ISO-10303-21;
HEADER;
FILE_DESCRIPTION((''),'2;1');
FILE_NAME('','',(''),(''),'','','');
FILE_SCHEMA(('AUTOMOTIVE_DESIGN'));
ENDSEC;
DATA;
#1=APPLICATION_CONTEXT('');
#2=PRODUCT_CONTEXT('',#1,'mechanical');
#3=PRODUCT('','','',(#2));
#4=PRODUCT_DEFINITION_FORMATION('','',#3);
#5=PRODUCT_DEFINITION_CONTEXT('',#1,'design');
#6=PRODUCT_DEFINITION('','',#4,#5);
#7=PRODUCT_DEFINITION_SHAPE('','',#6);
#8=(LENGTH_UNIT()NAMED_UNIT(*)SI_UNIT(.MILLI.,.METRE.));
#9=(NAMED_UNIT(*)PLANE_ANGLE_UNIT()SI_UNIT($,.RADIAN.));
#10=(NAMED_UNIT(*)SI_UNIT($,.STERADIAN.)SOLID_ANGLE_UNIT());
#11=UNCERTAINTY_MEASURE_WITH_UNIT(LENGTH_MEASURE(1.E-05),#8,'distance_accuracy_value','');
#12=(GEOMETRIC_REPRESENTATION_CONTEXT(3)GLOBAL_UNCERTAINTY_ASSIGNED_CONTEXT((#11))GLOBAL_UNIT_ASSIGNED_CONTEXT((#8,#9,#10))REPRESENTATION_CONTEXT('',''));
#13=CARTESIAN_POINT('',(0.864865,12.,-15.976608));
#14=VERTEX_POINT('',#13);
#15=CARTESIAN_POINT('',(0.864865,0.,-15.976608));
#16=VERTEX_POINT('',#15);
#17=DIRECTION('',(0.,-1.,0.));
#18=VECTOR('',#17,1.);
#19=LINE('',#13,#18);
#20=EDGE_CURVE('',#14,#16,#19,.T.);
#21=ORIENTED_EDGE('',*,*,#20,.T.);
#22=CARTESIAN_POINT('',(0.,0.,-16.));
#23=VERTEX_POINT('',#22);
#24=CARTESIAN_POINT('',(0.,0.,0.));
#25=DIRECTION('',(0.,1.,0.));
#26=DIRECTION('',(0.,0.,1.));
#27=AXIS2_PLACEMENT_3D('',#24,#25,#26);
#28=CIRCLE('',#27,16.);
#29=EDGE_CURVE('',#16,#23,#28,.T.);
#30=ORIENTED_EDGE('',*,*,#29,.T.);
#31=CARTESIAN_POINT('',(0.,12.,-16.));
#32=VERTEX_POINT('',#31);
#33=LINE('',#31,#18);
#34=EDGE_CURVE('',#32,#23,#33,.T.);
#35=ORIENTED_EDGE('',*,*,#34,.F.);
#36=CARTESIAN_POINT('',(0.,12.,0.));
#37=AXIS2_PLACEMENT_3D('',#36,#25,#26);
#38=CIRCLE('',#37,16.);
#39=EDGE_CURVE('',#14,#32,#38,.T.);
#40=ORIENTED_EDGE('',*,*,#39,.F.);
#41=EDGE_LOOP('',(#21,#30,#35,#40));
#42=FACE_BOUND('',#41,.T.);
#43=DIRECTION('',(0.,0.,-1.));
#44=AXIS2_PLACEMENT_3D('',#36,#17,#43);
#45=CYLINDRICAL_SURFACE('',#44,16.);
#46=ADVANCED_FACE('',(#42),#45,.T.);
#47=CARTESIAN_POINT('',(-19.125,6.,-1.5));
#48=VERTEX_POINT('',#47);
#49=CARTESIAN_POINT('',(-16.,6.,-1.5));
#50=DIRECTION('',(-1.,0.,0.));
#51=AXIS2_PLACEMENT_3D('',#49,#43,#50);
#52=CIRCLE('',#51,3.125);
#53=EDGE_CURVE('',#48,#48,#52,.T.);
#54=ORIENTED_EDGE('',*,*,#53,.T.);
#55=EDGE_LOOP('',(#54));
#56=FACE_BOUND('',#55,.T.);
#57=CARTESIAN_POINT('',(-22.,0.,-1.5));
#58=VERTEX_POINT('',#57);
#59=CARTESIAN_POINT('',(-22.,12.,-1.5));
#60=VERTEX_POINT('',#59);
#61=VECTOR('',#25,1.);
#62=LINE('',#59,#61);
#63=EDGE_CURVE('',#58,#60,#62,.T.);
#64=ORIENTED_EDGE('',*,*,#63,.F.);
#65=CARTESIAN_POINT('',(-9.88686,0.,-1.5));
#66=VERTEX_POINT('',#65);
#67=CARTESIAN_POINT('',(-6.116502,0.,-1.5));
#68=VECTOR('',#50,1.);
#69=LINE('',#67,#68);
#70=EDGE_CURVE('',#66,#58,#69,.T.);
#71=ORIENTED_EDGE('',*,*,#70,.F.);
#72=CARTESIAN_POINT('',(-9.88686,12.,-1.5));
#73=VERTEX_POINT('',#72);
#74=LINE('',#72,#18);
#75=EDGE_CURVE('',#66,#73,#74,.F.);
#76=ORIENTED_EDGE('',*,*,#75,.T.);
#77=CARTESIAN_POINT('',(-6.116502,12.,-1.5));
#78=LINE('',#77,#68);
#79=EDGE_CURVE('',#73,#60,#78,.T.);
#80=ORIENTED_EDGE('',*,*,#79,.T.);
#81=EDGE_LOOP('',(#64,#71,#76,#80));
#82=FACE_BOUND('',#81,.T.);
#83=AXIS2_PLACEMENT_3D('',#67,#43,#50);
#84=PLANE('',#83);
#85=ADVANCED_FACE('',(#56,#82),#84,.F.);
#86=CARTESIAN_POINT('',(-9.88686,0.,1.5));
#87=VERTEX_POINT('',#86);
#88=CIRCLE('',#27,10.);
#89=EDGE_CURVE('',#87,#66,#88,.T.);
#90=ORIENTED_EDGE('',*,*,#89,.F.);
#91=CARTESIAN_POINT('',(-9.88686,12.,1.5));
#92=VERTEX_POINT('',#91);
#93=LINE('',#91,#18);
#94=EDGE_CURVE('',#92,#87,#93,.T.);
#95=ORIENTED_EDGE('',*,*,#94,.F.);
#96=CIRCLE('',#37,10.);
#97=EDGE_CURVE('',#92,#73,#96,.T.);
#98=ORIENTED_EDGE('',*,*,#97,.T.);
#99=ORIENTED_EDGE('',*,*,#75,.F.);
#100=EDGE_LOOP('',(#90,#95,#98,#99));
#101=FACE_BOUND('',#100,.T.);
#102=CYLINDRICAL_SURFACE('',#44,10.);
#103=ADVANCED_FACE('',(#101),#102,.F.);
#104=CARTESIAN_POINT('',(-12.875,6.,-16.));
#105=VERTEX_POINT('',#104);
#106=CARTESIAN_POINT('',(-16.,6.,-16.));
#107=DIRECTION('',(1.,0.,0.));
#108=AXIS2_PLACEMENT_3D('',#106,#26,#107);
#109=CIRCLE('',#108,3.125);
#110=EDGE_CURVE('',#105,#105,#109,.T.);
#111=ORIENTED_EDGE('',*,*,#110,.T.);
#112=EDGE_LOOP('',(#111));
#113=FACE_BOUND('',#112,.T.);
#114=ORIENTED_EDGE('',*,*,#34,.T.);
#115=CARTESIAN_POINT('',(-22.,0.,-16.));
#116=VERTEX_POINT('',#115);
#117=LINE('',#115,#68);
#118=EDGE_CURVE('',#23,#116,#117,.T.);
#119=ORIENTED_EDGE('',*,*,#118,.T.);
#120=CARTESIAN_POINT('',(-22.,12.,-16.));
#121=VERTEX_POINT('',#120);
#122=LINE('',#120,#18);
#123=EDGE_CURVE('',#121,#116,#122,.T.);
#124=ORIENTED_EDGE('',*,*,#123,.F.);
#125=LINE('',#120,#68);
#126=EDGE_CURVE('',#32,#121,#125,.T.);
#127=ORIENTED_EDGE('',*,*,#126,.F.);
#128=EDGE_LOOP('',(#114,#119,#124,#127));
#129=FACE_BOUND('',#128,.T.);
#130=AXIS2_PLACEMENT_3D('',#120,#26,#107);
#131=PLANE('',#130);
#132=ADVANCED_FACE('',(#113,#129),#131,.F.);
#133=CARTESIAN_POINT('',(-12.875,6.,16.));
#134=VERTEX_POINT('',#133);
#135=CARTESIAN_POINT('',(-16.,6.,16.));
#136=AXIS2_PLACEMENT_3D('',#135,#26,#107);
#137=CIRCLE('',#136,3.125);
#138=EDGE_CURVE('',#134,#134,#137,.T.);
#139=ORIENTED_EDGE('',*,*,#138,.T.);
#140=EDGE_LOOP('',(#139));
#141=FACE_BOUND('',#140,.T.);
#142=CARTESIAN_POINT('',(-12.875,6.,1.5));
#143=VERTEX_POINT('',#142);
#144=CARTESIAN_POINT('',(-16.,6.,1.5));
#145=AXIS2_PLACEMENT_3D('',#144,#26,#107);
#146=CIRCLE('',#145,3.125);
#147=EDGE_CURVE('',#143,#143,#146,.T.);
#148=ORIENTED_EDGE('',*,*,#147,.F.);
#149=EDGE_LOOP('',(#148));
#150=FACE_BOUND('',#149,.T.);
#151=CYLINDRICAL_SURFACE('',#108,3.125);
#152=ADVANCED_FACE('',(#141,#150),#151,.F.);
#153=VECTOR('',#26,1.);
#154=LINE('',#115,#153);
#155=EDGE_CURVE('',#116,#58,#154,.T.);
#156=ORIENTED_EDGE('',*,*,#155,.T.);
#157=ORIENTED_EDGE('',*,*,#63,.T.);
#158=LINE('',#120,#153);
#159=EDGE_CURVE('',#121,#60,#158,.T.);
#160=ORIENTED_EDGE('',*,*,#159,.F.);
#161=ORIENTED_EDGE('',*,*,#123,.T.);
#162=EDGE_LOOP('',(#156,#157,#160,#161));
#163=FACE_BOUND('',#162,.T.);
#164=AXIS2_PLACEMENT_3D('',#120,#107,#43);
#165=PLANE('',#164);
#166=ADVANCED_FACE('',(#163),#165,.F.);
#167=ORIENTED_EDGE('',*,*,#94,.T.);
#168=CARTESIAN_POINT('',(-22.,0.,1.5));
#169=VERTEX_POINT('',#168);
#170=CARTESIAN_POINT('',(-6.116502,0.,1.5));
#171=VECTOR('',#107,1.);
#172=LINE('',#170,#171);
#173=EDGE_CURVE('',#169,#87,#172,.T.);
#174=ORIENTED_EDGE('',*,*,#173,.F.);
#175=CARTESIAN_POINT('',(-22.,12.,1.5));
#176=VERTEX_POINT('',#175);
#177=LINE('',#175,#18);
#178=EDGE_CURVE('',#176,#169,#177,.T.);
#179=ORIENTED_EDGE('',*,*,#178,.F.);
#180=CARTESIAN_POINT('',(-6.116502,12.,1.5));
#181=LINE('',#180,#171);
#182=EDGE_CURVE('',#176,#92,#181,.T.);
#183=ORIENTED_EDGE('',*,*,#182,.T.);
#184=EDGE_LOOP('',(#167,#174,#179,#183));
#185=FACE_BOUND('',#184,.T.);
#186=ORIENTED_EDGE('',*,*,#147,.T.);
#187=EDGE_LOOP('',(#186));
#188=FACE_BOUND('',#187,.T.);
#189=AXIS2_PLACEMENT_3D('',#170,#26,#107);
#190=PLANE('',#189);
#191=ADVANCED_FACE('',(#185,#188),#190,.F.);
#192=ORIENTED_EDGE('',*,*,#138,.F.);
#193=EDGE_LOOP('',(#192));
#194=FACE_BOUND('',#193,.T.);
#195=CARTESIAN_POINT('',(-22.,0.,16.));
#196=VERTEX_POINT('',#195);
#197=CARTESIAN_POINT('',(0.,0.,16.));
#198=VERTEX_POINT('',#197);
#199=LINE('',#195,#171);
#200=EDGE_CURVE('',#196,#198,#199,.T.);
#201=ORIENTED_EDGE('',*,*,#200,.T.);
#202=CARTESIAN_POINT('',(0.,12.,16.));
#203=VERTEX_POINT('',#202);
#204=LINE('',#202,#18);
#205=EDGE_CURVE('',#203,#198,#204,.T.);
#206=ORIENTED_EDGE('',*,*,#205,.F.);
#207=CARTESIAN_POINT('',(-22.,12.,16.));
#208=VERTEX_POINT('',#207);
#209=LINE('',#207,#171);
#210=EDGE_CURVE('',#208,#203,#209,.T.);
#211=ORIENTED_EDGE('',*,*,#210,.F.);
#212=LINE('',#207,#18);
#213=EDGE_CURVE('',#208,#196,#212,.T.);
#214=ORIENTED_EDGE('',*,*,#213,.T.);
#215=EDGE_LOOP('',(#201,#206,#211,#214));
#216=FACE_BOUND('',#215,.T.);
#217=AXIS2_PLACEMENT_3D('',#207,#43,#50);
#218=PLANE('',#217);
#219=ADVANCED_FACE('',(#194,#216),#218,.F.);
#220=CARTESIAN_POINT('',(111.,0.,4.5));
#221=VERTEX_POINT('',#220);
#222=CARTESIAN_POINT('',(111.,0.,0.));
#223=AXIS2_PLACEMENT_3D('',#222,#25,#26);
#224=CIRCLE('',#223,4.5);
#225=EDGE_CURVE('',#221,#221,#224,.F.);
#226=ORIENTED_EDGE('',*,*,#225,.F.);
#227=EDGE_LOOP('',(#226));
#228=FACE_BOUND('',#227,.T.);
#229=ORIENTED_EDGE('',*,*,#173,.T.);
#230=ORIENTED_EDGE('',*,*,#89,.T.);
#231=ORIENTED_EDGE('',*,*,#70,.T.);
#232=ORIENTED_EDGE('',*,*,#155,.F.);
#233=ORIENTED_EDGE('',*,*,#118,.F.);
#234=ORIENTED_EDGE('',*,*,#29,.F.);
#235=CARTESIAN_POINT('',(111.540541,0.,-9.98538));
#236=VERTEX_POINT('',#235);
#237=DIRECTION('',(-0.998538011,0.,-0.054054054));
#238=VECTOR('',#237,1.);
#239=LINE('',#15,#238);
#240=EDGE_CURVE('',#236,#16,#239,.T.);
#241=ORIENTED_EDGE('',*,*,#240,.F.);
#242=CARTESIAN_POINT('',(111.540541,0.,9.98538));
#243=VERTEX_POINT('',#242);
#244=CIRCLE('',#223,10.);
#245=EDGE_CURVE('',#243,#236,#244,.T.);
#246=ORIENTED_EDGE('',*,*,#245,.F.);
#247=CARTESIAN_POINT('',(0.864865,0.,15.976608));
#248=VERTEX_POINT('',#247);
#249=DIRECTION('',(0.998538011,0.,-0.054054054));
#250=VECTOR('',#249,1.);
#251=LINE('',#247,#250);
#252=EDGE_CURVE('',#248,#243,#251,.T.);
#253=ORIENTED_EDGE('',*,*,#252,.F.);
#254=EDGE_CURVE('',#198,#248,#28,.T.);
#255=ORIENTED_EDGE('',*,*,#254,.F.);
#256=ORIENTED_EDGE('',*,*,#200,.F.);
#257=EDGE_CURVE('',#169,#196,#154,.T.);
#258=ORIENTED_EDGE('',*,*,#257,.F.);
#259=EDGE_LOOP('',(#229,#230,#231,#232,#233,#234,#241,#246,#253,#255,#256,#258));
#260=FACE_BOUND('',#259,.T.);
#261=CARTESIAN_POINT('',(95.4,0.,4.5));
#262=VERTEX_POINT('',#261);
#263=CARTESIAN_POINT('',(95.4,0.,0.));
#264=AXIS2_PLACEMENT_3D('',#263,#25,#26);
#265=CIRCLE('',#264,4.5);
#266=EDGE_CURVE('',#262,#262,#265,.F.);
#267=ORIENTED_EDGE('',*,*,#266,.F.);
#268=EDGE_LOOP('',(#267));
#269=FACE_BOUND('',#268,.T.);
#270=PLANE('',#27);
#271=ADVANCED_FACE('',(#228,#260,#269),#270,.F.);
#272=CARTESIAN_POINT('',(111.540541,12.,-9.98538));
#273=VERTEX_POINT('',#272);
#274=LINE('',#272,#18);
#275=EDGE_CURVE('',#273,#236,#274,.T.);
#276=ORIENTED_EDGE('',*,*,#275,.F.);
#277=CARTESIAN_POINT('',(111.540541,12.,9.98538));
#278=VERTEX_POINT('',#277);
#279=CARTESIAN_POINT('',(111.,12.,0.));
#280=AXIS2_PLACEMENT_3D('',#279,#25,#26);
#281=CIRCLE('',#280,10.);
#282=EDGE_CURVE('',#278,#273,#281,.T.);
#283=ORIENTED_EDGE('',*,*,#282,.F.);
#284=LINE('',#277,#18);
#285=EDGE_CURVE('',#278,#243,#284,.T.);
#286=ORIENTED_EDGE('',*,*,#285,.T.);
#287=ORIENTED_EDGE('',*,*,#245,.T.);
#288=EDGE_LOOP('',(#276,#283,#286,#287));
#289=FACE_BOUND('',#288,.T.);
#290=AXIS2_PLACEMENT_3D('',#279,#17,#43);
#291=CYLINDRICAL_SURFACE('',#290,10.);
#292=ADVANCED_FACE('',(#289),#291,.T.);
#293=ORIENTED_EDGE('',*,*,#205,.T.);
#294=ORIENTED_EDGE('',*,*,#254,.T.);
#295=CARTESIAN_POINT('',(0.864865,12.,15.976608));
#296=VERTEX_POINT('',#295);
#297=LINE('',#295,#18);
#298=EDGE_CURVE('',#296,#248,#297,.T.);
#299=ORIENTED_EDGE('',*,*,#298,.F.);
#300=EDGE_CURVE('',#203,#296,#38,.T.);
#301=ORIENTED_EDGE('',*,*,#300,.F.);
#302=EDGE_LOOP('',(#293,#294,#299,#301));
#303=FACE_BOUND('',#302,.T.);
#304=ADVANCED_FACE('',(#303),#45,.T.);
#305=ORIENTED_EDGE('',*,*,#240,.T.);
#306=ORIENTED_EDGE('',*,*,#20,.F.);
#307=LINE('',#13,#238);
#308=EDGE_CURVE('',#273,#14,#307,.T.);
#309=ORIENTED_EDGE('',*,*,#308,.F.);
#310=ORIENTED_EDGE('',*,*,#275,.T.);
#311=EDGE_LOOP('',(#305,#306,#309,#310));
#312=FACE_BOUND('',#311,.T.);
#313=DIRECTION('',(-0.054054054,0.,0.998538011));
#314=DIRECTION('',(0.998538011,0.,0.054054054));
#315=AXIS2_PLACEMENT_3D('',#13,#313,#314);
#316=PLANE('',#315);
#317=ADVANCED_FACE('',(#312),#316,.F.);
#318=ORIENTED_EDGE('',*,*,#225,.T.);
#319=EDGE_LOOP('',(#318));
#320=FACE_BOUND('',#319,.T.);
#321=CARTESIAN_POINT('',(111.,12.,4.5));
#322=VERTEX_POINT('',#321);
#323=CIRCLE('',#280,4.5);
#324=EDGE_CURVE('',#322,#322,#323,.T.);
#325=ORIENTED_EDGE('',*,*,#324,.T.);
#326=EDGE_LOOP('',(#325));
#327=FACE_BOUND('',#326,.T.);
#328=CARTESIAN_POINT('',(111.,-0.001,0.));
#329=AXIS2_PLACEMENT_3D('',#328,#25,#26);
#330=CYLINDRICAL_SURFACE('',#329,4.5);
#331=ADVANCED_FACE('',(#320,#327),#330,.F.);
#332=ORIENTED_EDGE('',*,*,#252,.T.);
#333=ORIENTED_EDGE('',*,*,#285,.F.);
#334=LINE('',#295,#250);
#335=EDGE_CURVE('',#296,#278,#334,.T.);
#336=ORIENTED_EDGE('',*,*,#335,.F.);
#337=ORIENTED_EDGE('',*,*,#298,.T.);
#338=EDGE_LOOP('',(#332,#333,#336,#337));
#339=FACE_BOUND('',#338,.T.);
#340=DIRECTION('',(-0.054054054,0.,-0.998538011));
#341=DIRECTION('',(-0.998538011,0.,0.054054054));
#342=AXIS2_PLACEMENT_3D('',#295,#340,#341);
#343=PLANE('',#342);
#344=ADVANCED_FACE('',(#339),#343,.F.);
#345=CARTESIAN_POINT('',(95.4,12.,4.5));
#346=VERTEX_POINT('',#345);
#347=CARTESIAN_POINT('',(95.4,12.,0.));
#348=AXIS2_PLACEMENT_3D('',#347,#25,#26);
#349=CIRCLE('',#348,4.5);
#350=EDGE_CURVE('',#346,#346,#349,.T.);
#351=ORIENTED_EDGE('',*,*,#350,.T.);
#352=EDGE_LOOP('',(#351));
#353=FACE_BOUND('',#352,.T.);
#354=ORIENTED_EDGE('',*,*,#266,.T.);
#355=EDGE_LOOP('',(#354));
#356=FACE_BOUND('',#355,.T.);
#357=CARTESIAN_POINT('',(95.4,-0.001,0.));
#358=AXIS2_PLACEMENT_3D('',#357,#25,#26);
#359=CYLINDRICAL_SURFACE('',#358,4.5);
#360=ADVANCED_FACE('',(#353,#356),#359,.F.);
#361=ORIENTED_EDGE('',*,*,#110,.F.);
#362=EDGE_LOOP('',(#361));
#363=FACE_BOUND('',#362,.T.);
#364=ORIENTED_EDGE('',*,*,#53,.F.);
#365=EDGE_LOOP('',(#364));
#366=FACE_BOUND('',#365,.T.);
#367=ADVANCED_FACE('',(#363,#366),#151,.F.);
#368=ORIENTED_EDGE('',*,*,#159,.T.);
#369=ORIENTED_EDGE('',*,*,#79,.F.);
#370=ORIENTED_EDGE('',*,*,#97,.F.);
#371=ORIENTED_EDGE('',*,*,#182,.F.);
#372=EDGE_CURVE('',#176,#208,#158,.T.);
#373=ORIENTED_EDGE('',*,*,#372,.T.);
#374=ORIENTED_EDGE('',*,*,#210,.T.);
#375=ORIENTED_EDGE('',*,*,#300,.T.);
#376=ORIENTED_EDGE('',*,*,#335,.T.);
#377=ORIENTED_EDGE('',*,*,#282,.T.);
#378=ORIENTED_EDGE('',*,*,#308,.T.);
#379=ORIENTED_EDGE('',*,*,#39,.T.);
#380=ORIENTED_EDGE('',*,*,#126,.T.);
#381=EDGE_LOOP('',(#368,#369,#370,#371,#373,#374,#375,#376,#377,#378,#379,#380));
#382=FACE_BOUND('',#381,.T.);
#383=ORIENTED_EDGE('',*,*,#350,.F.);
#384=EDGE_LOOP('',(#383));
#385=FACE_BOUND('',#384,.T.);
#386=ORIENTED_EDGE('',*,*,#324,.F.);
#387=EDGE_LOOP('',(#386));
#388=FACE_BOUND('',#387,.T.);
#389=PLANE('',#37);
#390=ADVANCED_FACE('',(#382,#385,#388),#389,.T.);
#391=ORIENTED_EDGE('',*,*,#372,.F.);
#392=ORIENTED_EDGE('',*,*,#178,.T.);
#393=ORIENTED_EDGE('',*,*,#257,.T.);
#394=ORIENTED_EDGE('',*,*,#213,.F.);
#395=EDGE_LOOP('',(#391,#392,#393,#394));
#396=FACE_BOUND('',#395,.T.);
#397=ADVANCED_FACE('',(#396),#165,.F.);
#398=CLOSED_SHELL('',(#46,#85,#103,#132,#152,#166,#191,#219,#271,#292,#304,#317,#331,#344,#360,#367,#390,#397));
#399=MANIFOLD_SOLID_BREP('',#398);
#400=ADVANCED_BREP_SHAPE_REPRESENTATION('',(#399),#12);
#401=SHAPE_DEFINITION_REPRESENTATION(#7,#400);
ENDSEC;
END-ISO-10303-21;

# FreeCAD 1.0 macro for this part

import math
import FreeCAD as App
import Part
import Sketcher

V = App.Vector

doc = App.newDocument("Part")
body = doc.addObject("PartDesign::Body", "Body")

# Sketch on XZ plane
sketch1 = body.newObject("Sketcher::SketchObject", "Sketch")
sketch1.AttachmentSupport = (doc.getObject("XZ_Plane"), [""])
sketch1.MapMode = "FlatFace"
sketch1.addGeometry([
    Part.LineSegment(V(111.5, -10, 0), V(0.9, -16, 0)),  # 0
    Part.ArcOfCircle(Part.Circle(V(0, 0, 0), V(0, 0, 1), 16), math.radians(-90), math.radians(-86.9)),  # 1
    Part.LineSegment(V(0, -16, 0), V(-22, -16, 0)),  # 2
    Part.LineSegment(V(-22, -16, 0), V(-22, 16, 0)),  # 3
    Part.LineSegment(V(-22, 16, 0), V(0, 16, 0)),  # 4
    Part.ArcOfCircle(Part.Circle(V(0, 0, 0), V(0, 0, 1), 16), math.radians(86.9), math.radians(90)),  # 5
    Part.LineSegment(V(0.9, 16, 0), V(111.5, 10, 0)),  # 6
    Part.ArcOfCircle(Part.Circle(V(111, 0, 0), V(0, 0, 1), 10), math.radians(-87), math.radians(87)),  # 7
    Part.Circle(V(0, 0, 0), V(0, 0, 1), 10),  # 8
], False)
sketch1.addConstraint([
    Sketcher.Constraint("Tangent", 0, 2, 1, 2),
    Sketcher.Constraint("Tangent", 1, 1, 2, 1),
    Sketcher.Constraint("Coincident", 2, 2, 3, 1),
    Sketcher.Constraint("Coincident", 3, 2, 4, 1),
    Sketcher.Constraint("Tangent", 4, 2, 5, 2),
    Sketcher.Constraint("Tangent", 5, 1, 6, 1),
    Sketcher.Constraint("Tangent", 6, 2, 7, 2),
    Sketcher.Constraint("Tangent", 7, 1, 0, 1),
    Sketcher.Constraint("Horizontal", 2),
    Sketcher.Constraint("Vertical", 3),
    Sketcher.Constraint("Horizontal", 4),
    Sketcher.Constraint("Coincident", 1, 3, -1, 1),
    Sketcher.Constraint("Coincident", 5, 3, -1, 1),
    Sketcher.Constraint("Coincident", 8, 3, -1, 1),
    Sketcher.Constraint("Equal", 1, 5),
    Sketcher.Constraint("Equal", 7, 8),
    Sketcher.Constraint("PointOnObject", 7, 3, -1),
    Sketcher.Constraint("Diameter", 8, 20.0),
    Sketcher.Constraint("Radius", 1, 15.999999),
    Sketcher.Constraint("DistanceX", 2, 2, 2, 1, 22.0),
    Sketcher.Constraint("DistanceX", -1, 1, 7, 3, 111.0),
])
pad1 = body.newObject("PartDesign::Pad", "Pad")
pad1.Profile = sketch1
pad1.Length = 12
pad1.Reversed = True

# Sketch on XZ plane
sketch2 = body.newObject("Sketcher::SketchObject", "Sketch001")
sketch2.AttachmentSupport = (doc.getObject("XZ_Plane"), [""])
sketch2.MapMode = "FlatFace"
sketch2.AttachmentOffset = App.Placement(V(0, 0, -12), App.Rotation())
sketch2.addGeometry([
    Part.LineSegment(V(-27.9, -1.5, 0), V(-27.9, 1.5, 0)),
    Part.LineSegment(V(-27.9, 1.5, 0), V(-6.1, 1.5, 0)),
    Part.LineSegment(V(-6.1, 1.5, 0), V(-6.1, -1.5, 0)),
    Part.LineSegment(V(-6.1, -1.5, 0), V(-27.9, -1.5, 0)),
], False)
sketch2.addConstraint([
    Sketcher.Constraint("Coincident", 0, 2, 1, 1),
    Sketcher.Constraint("Coincident", 1, 2, 2, 1),
    Sketcher.Constraint("Coincident", 2, 2, 3, 1),
    Sketcher.Constraint("Coincident", 3, 2, 0, 1),
    Sketcher.Constraint("Vertical", 0),
    Sketcher.Constraint("Horizontal", 1),
    Sketcher.Constraint("Vertical", 2),
    Sketcher.Constraint("Horizontal", 3),
    Sketcher.Constraint("DistanceY", 0, 1, 0, 2, 3.0),
    Sketcher.Constraint("DistanceY", -1, 1, 0, 2, 1.5),
    Sketcher.Constraint("DistanceX", 1, 1, 1, 2, 21.833325),
    Sketcher.Constraint("DistanceX", 0, 2, -1, 1, 27.949828),
])
pocket1 = body.newObject("PartDesign::Pocket", "Pocket")
pocket1.Profile = sketch2
pocket1.Length = 12
pocket1.Reversed = True

# Sketch on XY plane
sketch3 = body.newObject("Sketcher::SketchObject", "Sketch002")
sketch3.AttachmentSupport = (doc.getObject("XY_Plane"), [""])
sketch3.MapMode = "FlatFace"
sketch3.AttachmentOffset = App.Placement(V(0, 0, 16), App.Rotation())
sketch3.addGeometry(Part.Circle(V(-16, 6, 0), V(0, 0, 1), 3.1), False)
sketch3.addConstraint([
    Sketcher.Constraint("Diameter", 0, 6.25),
    Sketcher.Constraint("DistanceX", 0, 3, -1, 1, 16.0),
    Sketcher.Constraint("DistanceY", -1, 1, 0, 3, 6.0),
])
pocket2 = body.newObject("PartDesign::Pocket", "Pocket001")
pocket2.Profile = sketch3
pocket2.Type = "ThroughAll"

# Sketch on XZ plane
sketch4 = body.newObject("Sketcher::SketchObject", "Sketch003")
sketch4.AttachmentSupport = (doc.getObject("XZ_Plane"), [""])
sketch4.MapMode = "FlatFace"
sketch4.AttachmentOffset = App.Placement(V(0, 0, -12), App.Rotation())
sketch4.addGeometry(Part.Circle(V(111, 0, 0), V(0, 0, 1), 4.5), False)
sketch4.addConstraint([
    Sketcher.Constraint("PointOnObject", 0, 3, -1),
    Sketcher.Constraint("Diameter", 0, 9.0),
    Sketcher.Constraint("DistanceX", -1, 1, 0, 3, 111.0),
])
pocket3 = body.newObject("PartDesign::Pocket", "Pocket002")
pocket3.Profile = sketch4
pocket3.Type = "UpToFirst"
pocket3.Reversed = True

# Sketch on XZ plane
sketch5 = body.newObject("Sketcher::SketchObject", "Sketch004")
sketch5.AttachmentSupport = (doc.getObject("XZ_Plane"), [""])
sketch5.MapMode = "FlatFace"
sketch5.AttachmentOffset = App.Placement(V(0, 0, -12), App.Rotation())
sketch5.addGeometry(Part.Circle(V(95.4, 0, 0), V(0, 0, 1), 4.5), False)
sketch5.addConstraint([
    Sketcher.Constraint("PointOnObject", 0, 3, -1),
    Sketcher.Constraint("Diameter", 0, 9.0),
    Sketcher.Constraint("DistanceX", -1, 1, 0, 3, 95.4),
])
pocket4 = body.newObject("PartDesign::Pocket", "Pocket003")
pocket4.Profile = sketch5
pocket4.Type = "UpToFirst"
pocket4.Reversed = True

doc.recompute()
